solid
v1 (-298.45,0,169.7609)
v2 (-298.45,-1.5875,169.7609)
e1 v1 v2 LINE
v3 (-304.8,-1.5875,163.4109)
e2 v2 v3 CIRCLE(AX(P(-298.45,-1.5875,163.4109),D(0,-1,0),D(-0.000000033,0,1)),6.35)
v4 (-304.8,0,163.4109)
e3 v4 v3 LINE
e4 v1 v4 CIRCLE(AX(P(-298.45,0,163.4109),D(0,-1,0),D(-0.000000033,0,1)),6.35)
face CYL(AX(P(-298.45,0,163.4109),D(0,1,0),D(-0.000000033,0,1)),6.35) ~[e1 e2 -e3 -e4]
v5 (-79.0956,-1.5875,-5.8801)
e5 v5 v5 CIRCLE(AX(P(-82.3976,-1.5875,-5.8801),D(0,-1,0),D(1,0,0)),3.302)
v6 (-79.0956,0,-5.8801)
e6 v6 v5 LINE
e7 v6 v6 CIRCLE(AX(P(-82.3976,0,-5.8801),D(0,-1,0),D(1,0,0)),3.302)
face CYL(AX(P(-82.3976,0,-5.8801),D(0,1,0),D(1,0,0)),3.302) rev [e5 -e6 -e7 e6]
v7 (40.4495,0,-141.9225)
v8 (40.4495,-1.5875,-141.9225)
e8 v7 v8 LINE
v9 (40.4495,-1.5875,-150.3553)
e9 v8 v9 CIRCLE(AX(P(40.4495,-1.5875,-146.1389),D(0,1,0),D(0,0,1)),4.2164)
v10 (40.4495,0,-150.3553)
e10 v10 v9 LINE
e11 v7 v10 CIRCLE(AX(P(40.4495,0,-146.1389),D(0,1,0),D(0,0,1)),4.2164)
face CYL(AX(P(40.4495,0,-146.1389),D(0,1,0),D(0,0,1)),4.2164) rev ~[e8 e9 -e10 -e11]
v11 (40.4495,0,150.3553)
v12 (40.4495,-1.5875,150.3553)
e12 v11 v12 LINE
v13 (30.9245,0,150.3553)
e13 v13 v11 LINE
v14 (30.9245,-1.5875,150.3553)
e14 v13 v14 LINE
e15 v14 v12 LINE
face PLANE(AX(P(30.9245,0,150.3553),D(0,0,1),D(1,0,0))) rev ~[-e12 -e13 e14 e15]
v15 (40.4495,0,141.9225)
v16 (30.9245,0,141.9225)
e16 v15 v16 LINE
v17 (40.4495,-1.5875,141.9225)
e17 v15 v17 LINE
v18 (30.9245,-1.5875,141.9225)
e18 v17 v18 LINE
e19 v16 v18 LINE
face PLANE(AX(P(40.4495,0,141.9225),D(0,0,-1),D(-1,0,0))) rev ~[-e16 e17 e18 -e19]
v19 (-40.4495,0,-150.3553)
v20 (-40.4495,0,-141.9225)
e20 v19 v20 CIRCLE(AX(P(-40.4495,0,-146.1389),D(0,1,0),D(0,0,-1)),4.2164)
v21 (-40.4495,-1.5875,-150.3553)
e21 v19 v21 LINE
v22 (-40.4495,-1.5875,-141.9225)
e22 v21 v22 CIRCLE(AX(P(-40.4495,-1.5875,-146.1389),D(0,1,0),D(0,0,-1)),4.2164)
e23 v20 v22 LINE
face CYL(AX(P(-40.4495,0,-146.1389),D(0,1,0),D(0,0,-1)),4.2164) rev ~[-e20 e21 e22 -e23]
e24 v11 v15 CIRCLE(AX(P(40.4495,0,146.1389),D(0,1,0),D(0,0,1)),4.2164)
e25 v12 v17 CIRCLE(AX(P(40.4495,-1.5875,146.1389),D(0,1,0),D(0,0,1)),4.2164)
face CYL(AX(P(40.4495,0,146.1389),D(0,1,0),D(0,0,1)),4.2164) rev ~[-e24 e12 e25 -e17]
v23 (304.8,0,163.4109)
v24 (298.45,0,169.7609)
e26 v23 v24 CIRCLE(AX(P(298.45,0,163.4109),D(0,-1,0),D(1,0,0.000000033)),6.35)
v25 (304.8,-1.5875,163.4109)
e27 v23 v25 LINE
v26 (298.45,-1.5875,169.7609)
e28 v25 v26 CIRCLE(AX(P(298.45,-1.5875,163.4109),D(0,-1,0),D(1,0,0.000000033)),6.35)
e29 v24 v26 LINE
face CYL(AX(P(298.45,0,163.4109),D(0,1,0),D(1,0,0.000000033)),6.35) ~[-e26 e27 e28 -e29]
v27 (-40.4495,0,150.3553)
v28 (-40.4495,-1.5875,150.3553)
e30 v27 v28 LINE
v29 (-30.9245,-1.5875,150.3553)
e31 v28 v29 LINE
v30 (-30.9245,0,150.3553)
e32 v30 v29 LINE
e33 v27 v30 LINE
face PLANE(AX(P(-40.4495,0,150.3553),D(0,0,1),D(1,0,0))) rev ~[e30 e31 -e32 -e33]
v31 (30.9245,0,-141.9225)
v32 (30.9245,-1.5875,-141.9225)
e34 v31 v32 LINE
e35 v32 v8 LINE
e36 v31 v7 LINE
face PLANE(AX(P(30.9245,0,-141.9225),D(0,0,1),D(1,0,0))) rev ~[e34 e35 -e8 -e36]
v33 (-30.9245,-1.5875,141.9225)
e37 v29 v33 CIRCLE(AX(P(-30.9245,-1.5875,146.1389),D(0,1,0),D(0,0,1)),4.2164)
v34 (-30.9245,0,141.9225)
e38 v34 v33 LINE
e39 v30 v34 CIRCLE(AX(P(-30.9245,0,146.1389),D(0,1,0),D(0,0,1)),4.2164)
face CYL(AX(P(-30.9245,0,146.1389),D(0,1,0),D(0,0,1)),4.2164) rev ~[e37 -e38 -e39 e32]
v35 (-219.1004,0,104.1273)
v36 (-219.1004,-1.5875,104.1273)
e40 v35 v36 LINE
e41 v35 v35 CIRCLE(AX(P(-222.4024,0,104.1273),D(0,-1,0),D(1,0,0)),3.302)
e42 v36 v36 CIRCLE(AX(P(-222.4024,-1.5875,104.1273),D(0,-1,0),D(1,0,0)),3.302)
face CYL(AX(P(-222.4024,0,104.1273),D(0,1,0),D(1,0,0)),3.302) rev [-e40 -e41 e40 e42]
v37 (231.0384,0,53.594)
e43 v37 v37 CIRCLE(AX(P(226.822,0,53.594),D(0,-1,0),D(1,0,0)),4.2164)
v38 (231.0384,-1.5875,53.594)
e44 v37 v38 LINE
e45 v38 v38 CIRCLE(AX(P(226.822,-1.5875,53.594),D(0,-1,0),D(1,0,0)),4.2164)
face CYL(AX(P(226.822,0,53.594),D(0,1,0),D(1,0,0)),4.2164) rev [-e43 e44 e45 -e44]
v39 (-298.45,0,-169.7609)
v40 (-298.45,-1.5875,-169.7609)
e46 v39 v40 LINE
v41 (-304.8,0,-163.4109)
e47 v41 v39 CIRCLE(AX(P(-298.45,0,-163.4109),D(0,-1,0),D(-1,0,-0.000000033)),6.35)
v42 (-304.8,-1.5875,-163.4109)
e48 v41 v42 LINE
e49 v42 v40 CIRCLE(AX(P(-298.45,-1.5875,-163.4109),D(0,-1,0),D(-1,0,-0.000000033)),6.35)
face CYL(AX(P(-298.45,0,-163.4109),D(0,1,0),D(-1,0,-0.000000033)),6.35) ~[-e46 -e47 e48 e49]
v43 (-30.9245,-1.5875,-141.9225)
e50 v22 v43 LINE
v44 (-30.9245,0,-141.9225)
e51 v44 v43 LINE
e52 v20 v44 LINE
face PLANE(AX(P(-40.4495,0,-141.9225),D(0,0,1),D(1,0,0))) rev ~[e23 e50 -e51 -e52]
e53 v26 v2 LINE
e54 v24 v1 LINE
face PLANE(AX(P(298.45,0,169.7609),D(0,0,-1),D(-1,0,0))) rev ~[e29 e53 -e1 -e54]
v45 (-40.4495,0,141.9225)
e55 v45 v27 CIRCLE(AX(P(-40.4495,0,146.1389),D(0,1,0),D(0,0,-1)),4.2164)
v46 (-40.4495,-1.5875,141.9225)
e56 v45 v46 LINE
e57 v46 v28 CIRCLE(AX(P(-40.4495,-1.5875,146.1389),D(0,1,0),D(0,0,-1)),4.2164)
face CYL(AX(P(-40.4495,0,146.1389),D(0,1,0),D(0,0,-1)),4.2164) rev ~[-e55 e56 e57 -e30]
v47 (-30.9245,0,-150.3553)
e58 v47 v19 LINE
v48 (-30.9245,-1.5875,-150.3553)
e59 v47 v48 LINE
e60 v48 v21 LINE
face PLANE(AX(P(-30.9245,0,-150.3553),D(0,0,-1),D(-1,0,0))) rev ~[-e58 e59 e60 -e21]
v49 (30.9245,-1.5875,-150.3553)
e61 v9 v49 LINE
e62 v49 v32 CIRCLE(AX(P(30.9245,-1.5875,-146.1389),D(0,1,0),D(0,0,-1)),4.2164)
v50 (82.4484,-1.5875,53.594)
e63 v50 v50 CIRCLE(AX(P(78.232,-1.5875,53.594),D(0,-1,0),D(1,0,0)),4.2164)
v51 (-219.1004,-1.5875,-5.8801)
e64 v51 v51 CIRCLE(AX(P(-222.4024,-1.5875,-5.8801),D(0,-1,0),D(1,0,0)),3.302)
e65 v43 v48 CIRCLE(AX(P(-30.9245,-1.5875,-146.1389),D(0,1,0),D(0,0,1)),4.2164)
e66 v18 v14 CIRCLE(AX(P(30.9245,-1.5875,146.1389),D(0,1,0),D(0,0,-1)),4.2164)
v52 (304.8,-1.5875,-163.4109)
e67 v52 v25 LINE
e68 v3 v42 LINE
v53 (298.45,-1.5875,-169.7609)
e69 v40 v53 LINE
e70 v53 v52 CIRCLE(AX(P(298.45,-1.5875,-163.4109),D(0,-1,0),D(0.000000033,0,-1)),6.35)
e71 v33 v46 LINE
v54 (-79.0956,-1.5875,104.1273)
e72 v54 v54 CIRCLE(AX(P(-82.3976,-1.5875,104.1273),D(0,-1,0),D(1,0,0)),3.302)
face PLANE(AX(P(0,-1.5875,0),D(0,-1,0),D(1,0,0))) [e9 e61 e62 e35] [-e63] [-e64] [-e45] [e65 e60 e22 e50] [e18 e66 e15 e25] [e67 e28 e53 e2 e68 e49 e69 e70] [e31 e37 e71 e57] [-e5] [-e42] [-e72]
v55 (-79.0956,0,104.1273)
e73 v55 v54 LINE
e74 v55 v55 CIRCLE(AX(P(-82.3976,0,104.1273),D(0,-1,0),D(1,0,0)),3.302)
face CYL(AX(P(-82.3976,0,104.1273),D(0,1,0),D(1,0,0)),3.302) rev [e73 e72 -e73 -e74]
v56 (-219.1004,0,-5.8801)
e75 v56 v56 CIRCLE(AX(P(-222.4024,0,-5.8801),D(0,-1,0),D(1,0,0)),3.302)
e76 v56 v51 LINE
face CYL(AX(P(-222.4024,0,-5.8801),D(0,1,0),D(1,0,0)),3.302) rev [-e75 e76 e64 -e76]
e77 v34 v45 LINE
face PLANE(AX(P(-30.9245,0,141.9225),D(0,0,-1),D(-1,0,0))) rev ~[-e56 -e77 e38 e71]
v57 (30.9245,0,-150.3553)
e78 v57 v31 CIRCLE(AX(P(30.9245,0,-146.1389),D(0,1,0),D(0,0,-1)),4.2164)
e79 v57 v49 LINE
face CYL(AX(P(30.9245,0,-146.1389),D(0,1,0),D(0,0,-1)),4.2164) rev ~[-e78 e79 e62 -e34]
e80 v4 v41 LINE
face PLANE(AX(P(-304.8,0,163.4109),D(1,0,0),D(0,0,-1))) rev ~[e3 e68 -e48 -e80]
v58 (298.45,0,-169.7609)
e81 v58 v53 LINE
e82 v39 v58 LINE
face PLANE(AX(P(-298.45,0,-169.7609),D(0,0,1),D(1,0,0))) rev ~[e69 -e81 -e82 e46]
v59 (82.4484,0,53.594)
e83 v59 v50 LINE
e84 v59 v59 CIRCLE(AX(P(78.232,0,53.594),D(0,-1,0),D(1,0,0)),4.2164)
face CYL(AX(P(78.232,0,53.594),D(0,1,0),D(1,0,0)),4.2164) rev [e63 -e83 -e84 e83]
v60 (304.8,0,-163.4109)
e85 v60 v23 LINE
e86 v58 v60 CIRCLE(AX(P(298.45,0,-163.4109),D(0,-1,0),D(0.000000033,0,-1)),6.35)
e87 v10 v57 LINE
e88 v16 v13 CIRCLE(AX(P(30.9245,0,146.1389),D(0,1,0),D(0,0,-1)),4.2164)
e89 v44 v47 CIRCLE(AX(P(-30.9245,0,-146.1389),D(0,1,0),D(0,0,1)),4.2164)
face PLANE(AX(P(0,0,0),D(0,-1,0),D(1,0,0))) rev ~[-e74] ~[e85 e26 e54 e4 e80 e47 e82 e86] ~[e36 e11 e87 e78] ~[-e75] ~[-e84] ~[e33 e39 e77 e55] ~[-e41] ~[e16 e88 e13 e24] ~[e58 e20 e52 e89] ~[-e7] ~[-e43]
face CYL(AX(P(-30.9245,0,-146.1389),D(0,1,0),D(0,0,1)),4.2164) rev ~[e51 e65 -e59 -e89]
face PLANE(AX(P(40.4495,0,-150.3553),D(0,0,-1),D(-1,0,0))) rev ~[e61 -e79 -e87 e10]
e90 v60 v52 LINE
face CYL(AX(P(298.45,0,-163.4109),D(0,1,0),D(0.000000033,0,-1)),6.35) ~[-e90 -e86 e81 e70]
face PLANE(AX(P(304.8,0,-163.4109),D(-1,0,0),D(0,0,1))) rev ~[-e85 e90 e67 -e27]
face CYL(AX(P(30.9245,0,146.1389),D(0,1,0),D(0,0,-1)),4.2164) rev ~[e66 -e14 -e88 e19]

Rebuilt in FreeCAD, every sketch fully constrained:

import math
import FreeCAD as App
import Part
import Sketcher

V = App.Vector
Q = App.Units.Quantity

doc = App.newDocument("Part")
body = doc.addObject("PartDesign::Body", "Body")

sketch1 = doc.addObject("Sketcher::SketchObject", "Sketch")
body.addObject(sketch1)
sketch1.AttachmentSupport = (doc.XZ_Plane, [""])
sketch1.MapMode = "FlatFace"
sketch1.addGeometry(Part.ArcOfCircle(Part.Circle(V(298.4, 163.4, 0), V(0, 0, 1), 6.4), math.radians(0), math.radians(90)), False)
sketch1.addGeometry(Part.LineSegment(V(298.4, 169.8, 0), V(-298.4, 169.8, 0)), False)
sketch1.addGeometry(Part.ArcOfCircle(Part.Circle(V(-298.4, 163.4, 0), V(0, 0, 1), 6.4), math.radians(90), math.radians(180)), False)
sketch1.addGeometry(Part.LineSegment(V(-304.8, 163.4, 0), V(-304.8, -163.4, 0)), False)
sketch1.addGeometry(Part.ArcOfCircle(Part.Circle(V(-298.4, -163.4, 0), V(0, 0, 1), 6.4), math.radians(-180), math.radians(-90)), False)
sketch1.addGeometry(Part.LineSegment(V(-298.4, -169.8, 0), V(298.4, -169.8, 0)), False)
sketch1.addGeometry(Part.ArcOfCircle(Part.Circle(V(298.4, -163.4, 0), V(0, 0, 1), 6.4), math.radians(-90), math.radians(0)), False)
sketch1.addGeometry(Part.LineSegment(V(304.8, -163.4, 0), V(304.8, 163.4, 0)), False)
sketch1.addGeometry(Part.ArcOfCircle(Part.Circle(V(-30.9, -146.1, 0), V(0, 0, 1), 4.2), math.radians(-90), math.radians(90)), False)
sketch1.addGeometry(Part.LineSegment(V(-30.9, -150.4, 0), V(-40.4, -150.4, 0)), False)
sketch1.addGeometry(Part.ArcOfCircle(Part.Circle(V(-40.4, -146.1, 0), V(0, 0, 1), 4.2), math.radians(90), math.radians(270)), False)
sketch1.addGeometry(Part.LineSegment(V(-40.4, -141.9, 0), V(-30.9, -141.9, 0)), False)
sketch1.addGeometry(Part.Circle(V(-222.4, -5.9, 0), V(0, 0, 1), 3.3), False)
sketch1.addGeometry(Part.Circle(V(-82.4, -5.9, 0), V(0, 0, 1), 3.3), False)
sketch1.addGeometry(Part.ArcOfCircle(Part.Circle(V(40.4, -146.1, 0), V(0, 0, 1), 4.2), math.radians(-90), math.radians(90)), False)
sketch1.addGeometry(Part.LineSegment(V(40.4, -150.4, 0), V(30.9, -150.4, 0)), False)
sketch1.addGeometry(Part.ArcOfCircle(Part.Circle(V(30.9, -146.1, 0), V(0, 0, 1), 4.2), math.radians(90), math.radians(270)), False)
sketch1.addGeometry(Part.LineSegment(V(30.9, -141.9, 0), V(40.4, -141.9, 0)), False)
sketch1.addGeometry(Part.Circle(V(-222.4, 104.1, 0), V(0, 0, 1), 3.3), False)
sketch1.addGeometry(Part.Circle(V(-82.4, 104.1, 0), V(0, 0, 1), 3.3), False)
sketch1.addGeometry(Part.ArcOfCircle(Part.Circle(V(-30.9, 146.1, 0), V(0, 0, 1), 4.2), math.radians(-90), math.radians(90)), False)
sketch1.addGeometry(Part.LineSegment(V(-30.9, 141.9, 0), V(-40.4, 141.9, 0)), False)
sketch1.addGeometry(Part.ArcOfCircle(Part.Circle(V(-40.4, 146.1, 0), V(0, 0, 1), 4.2), math.radians(90), math.radians(270)), False)
sketch1.addGeometry(Part.LineSegment(V(-40.4, 150.4, 0), V(-30.9, 150.4, 0)), False)
sketch1.addGeometry(Part.Circle(V(78.2, 53.6, 0), V(0, 0, 1), 4.2), False)
sketch1.addGeometry(Part.Circle(V(226.8, 53.6, 0), V(0, 0, 1), 4.2), False)
sketch1.addGeometry(Part.ArcOfCircle(Part.Circle(V(40.4, 146.1, 0), V(0, 0, 1), 4.2), math.radians(-90), math.radians(90)), False)
sketch1.addGeometry(Part.LineSegment(V(40.4, 141.9, 0), V(30.9, 141.9, 0)), False)
sketch1.addGeometry(Part.ArcOfCircle(Part.Circle(V(30.9, 146.1, 0), V(0, 0, 1), 4.2), math.radians(90), math.radians(270)), False)
sketch1.addGeometry(Part.LineSegment(V(30.9, 150.4, 0), V(40.4, 150.4, 0)), False)
sketch1.addConstraint(Sketcher.Constraint("Tangent", 0, 2, 1, 1))
sketch1.addConstraint(Sketcher.Constraint("Tangent", 1, 2, 2, 1))
sketch1.addConstraint(Sketcher.Constraint("Tangent", 2, 2, 3, 1))
sketch1.addConstraint(Sketcher.Constraint("Tangent", 3, 2, 4, 1))
sketch1.addConstraint(Sketcher.Constraint("Tangent", 4, 2, 5, 1))
sketch1.addConstraint(Sketcher.Constraint("Tangent", 5, 2, 6, 1))
sketch1.addConstraint(Sketcher.Constraint("Tangent", 6, 2, 7, 1))
sketch1.addConstraint(Sketcher.Constraint("Tangent", 7, 2, 0, 1))
sketch1.addConstraint(Sketcher.Constraint("Tangent", 8, 1, 9, 1))
sketch1.addConstraint(Sketcher.Constraint("Tangent", 9, 2, 10, 2))
sketch1.addConstraint(Sketcher.Constraint("Tangent", 10, 1, 11, 1))
sketch1.addConstraint(Sketcher.Constraint("Tangent", 11, 2, 8, 2))
sketch1.addConstraint(Sketcher.Constraint("Tangent", 14, 1, 15, 1))
sketch1.addConstraint(Sketcher.Constraint("Tangent", 15, 2, 16, 2))
sketch1.addConstraint(Sketcher.Constraint("Tangent", 16, 1, 17, 1))
sketch1.addConstraint(Sketcher.Constraint("Tangent", 17, 2, 14, 2))
sketch1.addConstraint(Sketcher.Constraint("Tangent", 20, 1, 21, 1))
sketch1.addConstraint(Sketcher.Constraint("Tangent", 21, 2, 22, 2))
sketch1.addConstraint(Sketcher.Constraint("Tangent", 22, 1, 23, 1))
sketch1.addConstraint(Sketcher.Constraint("Tangent", 23, 2, 20, 2))
sketch1.addConstraint(Sketcher.Constraint("Tangent", 26, 1, 27, 1))
sketch1.addConstraint(Sketcher.Constraint("Tangent", 27, 2, 28, 2))
sketch1.addConstraint(Sketcher.Constraint("Tangent", 28, 1, 29, 1))
sketch1.addConstraint(Sketcher.Constraint("Tangent", 29, 2, 26, 2))
sketch1.addConstraint(Sketcher.Constraint("Horizontal", 1))
sketch1.addConstraint(Sketcher.Constraint("Vertical", 3))
sketch1.addConstraint(Sketcher.Constraint("Horizontal", 5))
sketch1.addConstraint(Sketcher.Constraint("Vertical", 7))
sketch1.addConstraint(Sketcher.Constraint("Horizontal", 9))
sketch1.addConstraint(Sketcher.Constraint("Horizontal", 11))
sketch1.addConstraint(Sketcher.Constraint("Horizontal", 15))
sketch1.addConstraint(Sketcher.Constraint("Horizontal", 17))
sketch1.addConstraint(Sketcher.Constraint("Horizontal", 21))
sketch1.addConstraint(Sketcher.Constraint("Horizontal", 23))
sketch1.addConstraint(Sketcher.Constraint("Horizontal", 27))
sketch1.addConstraint(Sketcher.Constraint("Horizontal", 29))
sketch1.addConstraint(Sketcher.Constraint("Equal", 0, 2))
sketch1.addConstraint(Sketcher.Constraint("Equal", 2, 4))
sketch1.addConstraint(Sketcher.Constraint("Equal", 4, 6))
sketch1.addConstraint(Sketcher.Constraint("Equal", 12, 13))
sketch1.addConstraint(Sketcher.Constraint("Equal", 10, 14))
sketch1.addConstraint(Sketcher.Constraint("Equal", 13, 18))
sketch1.addConstraint(Sketcher.Constraint("Equal", 18, 19))
sketch1.addConstraint(Sketcher.Constraint("Equal", 16, 20))
sketch1.addConstraint(Sketcher.Constraint("Equal", 22, 24))
sketch1.addConstraint(Sketcher.Constraint("Equal", 24, 25))
sketch1.addConstraint(Sketcher.Constraint("Equal", 25, 26))
sketch1.addConstraint(Sketcher.Constraint("Symmetric", 0, 3, 4, 3, -1, 1))
sketch1.addConstraint(Sketcher.Constraint("Symmetric", 16, 3, 20, 3, -1, 1))
sketch1.addConstraint(Sketcher.Constraint("Symmetric", 10, 3, 26, 3, -1, 1))
sketch1.addConstraint(Sketcher.Constraint("Symmetric", 10, 3, 14, 3, -2))
sketch1.addConstraint(Sketcher.Constraint("Horizontal", 12, 3, 13, 3))
sketch1.addConstraint(Sketcher.Constraint("Horizontal", 18, 3, 19, 3))
sketch1.addConstraint(Sketcher.Constraint("Horizontal", 24, 3, 25, 3))
sketch1.addConstraint(Sketcher.Constraint("Vertical", 12, 3, 18, 3))
sketch1.addConstraint(Sketcher.Constraint("Vertical", 13, 3, 19, 3))
sketch1.addConstraint(Sketcher.Constraint("Vertical", 8, 3, 20, 3))
sketch1.addConstraint(Sketcher.Constraint("Vertical", 10, 3, 22, 3))
sketch1.addConstraint(Sketcher.Constraint("Vertical", 16, 3, 28, 3))
sketch1.addConstraint(Sketcher.Constraint("Diameter", 12, Q("0.26 in")))
sketch1.addConstraint(Sketcher.Constraint("Radius", 0, Q("0.25 in")))
sketch1.addConstraint(Sketcher.Constraint("Diameter", 24, Q("0.332 in")))
sketch1.addConstraint(Sketcher.Constraint("DistanceX", 1, 2, 1, 1, Q("23.5 in")))
sketch1.addConstraint(Sketcher.Constraint("DistanceX", 9, 2, 9, 1, Q("0.375 in")))
sketch1.addConstraint(Sketcher.Constraint("DistanceY", 3, 2, 3, 1, Q("12.867 in")))
sketch1.addConstraint(Sketcher.Constraint("DistanceX", -1, 1, 24, 3, Q("3.08 in")))
sketch1.addConstraint(Sketcher.Constraint("DistanceY", -1, 1, 24, 3, Q("2.11 in")))
sketch1.addConstraint(Sketcher.Constraint("DistanceX", -1, 1, 25, 3, Q("8.93 in")))
sketch1.addConstraint(Sketcher.Constraint("DistanceY", 4, 3, 8, 3, Q("0.68 in")))
sketch1.addConstraint(Sketcher.Constraint("DistanceX", 8, 3, 14, 3, Q("2.81 in")))
sketch1.addConstraint(Sketcher.Constraint("DistanceY", 19, 3, 22, 1, Q("1.82 in")))
sketch1.addConstraint(Sketcher.Constraint("DistanceX", 12, 3, -1, 1, Q("8.756 in")))
sketch1.addConstraint(Sketcher.Constraint("DistanceX", 13, 3, -1, 1, Q("3.244 in")))
sketch1.addConstraint(Sketcher.Constraint("DistanceY", 4, 3, 12, 3, Q("6.202 in")))
pad1 = doc.addObject("PartDesign::Pad", "Pad")
body.addObject(pad1)
pad1.Profile = sketch1
pad1.Length = Q("0.0625 in")

doc.recompute()
